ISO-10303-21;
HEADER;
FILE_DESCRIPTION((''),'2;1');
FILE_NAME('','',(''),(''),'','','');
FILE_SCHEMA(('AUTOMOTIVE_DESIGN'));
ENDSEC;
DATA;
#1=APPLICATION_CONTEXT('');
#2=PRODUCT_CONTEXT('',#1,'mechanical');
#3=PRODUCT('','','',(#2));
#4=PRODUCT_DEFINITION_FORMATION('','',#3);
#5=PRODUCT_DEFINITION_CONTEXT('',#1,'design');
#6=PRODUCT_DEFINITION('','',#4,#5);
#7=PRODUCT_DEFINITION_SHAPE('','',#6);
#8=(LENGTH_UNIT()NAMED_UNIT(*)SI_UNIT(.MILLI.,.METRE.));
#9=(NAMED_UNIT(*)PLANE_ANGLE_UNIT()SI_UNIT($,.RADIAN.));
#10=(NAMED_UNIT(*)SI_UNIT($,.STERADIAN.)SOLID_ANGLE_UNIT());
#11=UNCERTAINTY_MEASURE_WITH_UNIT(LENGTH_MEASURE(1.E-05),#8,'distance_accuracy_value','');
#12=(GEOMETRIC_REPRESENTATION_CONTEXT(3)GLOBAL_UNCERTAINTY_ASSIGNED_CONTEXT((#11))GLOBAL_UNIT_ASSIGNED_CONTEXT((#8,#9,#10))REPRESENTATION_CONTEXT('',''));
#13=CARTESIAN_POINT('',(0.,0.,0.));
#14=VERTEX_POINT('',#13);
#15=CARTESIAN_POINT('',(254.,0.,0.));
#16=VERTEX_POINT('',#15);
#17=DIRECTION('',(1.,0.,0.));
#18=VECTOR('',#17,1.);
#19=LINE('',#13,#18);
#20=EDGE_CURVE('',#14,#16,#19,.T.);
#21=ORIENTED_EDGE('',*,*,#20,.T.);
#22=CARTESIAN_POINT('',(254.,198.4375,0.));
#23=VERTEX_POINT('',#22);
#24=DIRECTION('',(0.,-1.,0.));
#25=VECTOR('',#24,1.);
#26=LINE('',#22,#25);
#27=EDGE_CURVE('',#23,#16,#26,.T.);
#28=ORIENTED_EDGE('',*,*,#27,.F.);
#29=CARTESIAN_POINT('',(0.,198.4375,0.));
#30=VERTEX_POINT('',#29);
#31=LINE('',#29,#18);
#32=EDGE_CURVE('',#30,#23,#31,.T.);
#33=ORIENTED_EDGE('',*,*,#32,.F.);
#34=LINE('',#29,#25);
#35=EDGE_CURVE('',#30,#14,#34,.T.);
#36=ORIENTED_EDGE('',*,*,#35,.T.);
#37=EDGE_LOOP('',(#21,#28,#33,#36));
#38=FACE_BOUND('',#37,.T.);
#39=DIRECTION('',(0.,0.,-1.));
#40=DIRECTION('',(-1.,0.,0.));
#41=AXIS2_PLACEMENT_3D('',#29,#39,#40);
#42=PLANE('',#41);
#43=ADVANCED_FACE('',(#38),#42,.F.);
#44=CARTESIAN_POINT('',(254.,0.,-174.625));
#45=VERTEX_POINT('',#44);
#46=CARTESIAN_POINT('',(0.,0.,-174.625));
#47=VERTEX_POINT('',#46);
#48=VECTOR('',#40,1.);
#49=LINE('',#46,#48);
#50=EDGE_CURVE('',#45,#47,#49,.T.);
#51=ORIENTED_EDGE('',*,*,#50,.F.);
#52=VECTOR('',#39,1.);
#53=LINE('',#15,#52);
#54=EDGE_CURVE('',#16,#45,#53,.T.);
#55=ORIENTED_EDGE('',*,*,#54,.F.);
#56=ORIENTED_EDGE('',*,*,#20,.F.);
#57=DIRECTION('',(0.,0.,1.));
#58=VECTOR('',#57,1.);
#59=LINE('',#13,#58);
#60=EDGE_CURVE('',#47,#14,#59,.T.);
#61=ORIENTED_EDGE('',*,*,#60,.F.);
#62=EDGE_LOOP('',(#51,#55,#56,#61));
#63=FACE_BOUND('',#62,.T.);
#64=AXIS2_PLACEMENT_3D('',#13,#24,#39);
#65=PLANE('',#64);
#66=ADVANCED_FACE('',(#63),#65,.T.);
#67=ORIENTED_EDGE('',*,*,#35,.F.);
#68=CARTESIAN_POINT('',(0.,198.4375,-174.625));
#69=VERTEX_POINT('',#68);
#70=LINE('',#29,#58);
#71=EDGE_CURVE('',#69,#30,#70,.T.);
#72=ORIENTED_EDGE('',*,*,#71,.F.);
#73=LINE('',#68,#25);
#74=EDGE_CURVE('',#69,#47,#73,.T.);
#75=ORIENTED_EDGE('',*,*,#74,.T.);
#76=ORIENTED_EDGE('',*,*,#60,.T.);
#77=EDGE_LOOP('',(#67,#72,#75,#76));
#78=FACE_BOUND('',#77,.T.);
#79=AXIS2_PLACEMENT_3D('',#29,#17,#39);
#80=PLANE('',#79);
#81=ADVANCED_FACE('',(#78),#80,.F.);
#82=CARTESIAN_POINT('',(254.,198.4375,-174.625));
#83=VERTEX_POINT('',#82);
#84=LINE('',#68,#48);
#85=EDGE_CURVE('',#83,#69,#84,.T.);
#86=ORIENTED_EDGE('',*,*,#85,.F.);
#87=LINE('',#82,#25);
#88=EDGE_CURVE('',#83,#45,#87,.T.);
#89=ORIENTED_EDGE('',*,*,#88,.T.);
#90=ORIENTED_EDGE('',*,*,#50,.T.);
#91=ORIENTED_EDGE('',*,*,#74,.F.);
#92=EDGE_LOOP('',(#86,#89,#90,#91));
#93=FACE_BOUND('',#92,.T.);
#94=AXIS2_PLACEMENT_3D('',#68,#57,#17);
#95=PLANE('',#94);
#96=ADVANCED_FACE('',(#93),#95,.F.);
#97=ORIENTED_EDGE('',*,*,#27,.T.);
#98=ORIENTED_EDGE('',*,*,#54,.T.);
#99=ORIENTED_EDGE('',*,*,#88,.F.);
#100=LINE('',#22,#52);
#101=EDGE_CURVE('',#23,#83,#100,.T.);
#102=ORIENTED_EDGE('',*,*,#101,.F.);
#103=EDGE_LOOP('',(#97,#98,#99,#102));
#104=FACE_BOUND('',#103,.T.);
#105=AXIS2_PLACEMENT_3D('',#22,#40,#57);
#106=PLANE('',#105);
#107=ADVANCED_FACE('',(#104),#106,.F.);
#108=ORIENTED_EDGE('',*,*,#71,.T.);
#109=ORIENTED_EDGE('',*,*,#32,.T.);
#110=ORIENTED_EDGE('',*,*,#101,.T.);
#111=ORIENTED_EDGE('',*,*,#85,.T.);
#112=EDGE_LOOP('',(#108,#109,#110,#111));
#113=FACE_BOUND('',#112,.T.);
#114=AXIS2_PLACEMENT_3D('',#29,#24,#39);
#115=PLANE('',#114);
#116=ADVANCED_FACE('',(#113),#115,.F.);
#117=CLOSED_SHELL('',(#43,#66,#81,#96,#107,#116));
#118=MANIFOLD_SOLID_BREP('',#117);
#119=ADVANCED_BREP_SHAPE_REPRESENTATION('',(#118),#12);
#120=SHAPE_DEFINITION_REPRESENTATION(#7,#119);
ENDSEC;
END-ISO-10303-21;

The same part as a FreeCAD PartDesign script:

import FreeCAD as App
import Part
import Sketcher
from FreeCAD import Vector
Q = App.Units.Quantity


def add_polygon(sketch, points):
    """Adds a closed chain of lines whose ends are joined by coincident constraints."""
    first, n = sketch.GeometryCount, len(points)
    for a, b in zip(points, points[1:] + points[:1]):
        sketch.addGeometry(Part.LineSegment(App.Vector(*a, 0), App.Vector(*b, 0)), False)
    for i in range(n):
        sketch.addConstraint(Sketcher.Constraint("Coincident", first + i, 2, first + (i + 1) % n, 1))

doc = App.newDocument("Part")
body = doc.addObject("PartDesign::Body", "Body")

# Sketch on XZ plane
sketch1 = body.newObject("Sketcher::SketchObject", "Sketch")
sketch1.AttachmentSupport = (doc.getObject("XZ_Plane"), [""])
sketch1.MapMode = "FlatFace"
add_polygon(sketch1, [(0, -175), (0, 0), (254, 0), (254, -175)])  # lines 0-3
sketch1.addConstraint([
    Sketcher.Constraint("Vertical", 0),
    Sketcher.Constraint("Horizontal", 1),
    Sketcher.Constraint("Vertical", 2),
    Sketcher.Constraint("Horizontal", 3),
    Sketcher.Constraint("Coincident", 0, 2, -1, 1),
    Sketcher.Constraint("DistanceX", 1, 1, 1, 2, Q("10 in")),
    Sketcher.Constraint("DistanceY", 0, 1, 0, 2, Q("6.875 in")),
])
pad1 = body.newObject("PartDesign::Pad", "Pad")
pad1.Profile = sketch1
pad1.Length = Q("7.8125 in")
pad1.Reversed = True

doc.recompute()
